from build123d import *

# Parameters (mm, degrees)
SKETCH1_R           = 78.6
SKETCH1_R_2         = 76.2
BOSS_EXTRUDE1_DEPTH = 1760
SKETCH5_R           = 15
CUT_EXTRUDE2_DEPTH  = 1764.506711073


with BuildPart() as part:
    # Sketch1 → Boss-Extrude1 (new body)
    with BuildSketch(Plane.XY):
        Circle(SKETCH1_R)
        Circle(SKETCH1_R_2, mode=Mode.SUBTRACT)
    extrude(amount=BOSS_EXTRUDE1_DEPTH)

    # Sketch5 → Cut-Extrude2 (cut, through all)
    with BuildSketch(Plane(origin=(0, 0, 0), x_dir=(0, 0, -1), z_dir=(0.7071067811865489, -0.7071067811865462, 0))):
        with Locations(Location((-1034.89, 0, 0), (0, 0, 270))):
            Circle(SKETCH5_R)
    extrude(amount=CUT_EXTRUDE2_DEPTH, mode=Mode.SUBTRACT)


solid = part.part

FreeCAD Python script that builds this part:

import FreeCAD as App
import Part
import Sketcher
Q = App.Units.Quantity

doc = App.newDocument("Part")
body = doc.addObject("PartDesign::Body", "Body")

# Sketch on XY plane
sketch1 = body.newObject("Sketcher::SketchObject", "Sketch")
sketch1.AttachmentSupport = (doc.getObject("XY_Plane"), [""])
sketch1.MapMode = "FlatFace"
sketch1.addGeometry([
    Part.Circle(App.Vector(0, 0, 0), App.Vector(0, 0, 1), 79),
    Part.Circle(App.Vector(0, 0, 0), App.Vector(0, 0, 1), 76),
], False)
sketch1.addConstraint([
    Sketcher.Constraint("Coincident", 0, 3, -1, 1),
    Sketcher.Constraint("Coincident", 1, 3, -1, 1),
    Sketcher.Constraint("Diameter", 0, Q("157.2 mm")),
    Sketcher.Constraint("Diameter", 1, Q("152.4 mm")),
])
pad1 = body.newObject("PartDesign::Pad", "Pad")
pad1.Profile = sketch1
pad1.Length = 1760

# Sketch on an angled plane
sketch2 = body.newObject("Sketcher::SketchObject", "Sketch001")
sketch2.Placement = App.Placement(App.Vector(0, 0, 0), App.Rotation(App.Vector(0, 0, -1), App.Vector(0.707106781, 0.707106781, 0), App.Vector(0.707106781, -0.707106781, 0), "ZXY"))
sketch2.addGeometry(Part.Circle(App.Vector(-1035, 0, 0), App.Vector(0, 0, 1), 15), False)
sketch2.addConstraint([
    Sketcher.Constraint("PointOnObject", 0, 3, -1),
    Sketcher.Constraint("Diameter", 0, Q("30 mm")),
    Sketcher.Constraint("DistanceX", 0, 3, -1, 1, Q("1034.89 mm")),
])
pocket1 = body.newObject("PartDesign::Pocket", "Pocket")
pocket1.Profile = sketch2
pocket1.Type = "ThroughAll"
pocket1.Reversed = True

doc.recompute()
